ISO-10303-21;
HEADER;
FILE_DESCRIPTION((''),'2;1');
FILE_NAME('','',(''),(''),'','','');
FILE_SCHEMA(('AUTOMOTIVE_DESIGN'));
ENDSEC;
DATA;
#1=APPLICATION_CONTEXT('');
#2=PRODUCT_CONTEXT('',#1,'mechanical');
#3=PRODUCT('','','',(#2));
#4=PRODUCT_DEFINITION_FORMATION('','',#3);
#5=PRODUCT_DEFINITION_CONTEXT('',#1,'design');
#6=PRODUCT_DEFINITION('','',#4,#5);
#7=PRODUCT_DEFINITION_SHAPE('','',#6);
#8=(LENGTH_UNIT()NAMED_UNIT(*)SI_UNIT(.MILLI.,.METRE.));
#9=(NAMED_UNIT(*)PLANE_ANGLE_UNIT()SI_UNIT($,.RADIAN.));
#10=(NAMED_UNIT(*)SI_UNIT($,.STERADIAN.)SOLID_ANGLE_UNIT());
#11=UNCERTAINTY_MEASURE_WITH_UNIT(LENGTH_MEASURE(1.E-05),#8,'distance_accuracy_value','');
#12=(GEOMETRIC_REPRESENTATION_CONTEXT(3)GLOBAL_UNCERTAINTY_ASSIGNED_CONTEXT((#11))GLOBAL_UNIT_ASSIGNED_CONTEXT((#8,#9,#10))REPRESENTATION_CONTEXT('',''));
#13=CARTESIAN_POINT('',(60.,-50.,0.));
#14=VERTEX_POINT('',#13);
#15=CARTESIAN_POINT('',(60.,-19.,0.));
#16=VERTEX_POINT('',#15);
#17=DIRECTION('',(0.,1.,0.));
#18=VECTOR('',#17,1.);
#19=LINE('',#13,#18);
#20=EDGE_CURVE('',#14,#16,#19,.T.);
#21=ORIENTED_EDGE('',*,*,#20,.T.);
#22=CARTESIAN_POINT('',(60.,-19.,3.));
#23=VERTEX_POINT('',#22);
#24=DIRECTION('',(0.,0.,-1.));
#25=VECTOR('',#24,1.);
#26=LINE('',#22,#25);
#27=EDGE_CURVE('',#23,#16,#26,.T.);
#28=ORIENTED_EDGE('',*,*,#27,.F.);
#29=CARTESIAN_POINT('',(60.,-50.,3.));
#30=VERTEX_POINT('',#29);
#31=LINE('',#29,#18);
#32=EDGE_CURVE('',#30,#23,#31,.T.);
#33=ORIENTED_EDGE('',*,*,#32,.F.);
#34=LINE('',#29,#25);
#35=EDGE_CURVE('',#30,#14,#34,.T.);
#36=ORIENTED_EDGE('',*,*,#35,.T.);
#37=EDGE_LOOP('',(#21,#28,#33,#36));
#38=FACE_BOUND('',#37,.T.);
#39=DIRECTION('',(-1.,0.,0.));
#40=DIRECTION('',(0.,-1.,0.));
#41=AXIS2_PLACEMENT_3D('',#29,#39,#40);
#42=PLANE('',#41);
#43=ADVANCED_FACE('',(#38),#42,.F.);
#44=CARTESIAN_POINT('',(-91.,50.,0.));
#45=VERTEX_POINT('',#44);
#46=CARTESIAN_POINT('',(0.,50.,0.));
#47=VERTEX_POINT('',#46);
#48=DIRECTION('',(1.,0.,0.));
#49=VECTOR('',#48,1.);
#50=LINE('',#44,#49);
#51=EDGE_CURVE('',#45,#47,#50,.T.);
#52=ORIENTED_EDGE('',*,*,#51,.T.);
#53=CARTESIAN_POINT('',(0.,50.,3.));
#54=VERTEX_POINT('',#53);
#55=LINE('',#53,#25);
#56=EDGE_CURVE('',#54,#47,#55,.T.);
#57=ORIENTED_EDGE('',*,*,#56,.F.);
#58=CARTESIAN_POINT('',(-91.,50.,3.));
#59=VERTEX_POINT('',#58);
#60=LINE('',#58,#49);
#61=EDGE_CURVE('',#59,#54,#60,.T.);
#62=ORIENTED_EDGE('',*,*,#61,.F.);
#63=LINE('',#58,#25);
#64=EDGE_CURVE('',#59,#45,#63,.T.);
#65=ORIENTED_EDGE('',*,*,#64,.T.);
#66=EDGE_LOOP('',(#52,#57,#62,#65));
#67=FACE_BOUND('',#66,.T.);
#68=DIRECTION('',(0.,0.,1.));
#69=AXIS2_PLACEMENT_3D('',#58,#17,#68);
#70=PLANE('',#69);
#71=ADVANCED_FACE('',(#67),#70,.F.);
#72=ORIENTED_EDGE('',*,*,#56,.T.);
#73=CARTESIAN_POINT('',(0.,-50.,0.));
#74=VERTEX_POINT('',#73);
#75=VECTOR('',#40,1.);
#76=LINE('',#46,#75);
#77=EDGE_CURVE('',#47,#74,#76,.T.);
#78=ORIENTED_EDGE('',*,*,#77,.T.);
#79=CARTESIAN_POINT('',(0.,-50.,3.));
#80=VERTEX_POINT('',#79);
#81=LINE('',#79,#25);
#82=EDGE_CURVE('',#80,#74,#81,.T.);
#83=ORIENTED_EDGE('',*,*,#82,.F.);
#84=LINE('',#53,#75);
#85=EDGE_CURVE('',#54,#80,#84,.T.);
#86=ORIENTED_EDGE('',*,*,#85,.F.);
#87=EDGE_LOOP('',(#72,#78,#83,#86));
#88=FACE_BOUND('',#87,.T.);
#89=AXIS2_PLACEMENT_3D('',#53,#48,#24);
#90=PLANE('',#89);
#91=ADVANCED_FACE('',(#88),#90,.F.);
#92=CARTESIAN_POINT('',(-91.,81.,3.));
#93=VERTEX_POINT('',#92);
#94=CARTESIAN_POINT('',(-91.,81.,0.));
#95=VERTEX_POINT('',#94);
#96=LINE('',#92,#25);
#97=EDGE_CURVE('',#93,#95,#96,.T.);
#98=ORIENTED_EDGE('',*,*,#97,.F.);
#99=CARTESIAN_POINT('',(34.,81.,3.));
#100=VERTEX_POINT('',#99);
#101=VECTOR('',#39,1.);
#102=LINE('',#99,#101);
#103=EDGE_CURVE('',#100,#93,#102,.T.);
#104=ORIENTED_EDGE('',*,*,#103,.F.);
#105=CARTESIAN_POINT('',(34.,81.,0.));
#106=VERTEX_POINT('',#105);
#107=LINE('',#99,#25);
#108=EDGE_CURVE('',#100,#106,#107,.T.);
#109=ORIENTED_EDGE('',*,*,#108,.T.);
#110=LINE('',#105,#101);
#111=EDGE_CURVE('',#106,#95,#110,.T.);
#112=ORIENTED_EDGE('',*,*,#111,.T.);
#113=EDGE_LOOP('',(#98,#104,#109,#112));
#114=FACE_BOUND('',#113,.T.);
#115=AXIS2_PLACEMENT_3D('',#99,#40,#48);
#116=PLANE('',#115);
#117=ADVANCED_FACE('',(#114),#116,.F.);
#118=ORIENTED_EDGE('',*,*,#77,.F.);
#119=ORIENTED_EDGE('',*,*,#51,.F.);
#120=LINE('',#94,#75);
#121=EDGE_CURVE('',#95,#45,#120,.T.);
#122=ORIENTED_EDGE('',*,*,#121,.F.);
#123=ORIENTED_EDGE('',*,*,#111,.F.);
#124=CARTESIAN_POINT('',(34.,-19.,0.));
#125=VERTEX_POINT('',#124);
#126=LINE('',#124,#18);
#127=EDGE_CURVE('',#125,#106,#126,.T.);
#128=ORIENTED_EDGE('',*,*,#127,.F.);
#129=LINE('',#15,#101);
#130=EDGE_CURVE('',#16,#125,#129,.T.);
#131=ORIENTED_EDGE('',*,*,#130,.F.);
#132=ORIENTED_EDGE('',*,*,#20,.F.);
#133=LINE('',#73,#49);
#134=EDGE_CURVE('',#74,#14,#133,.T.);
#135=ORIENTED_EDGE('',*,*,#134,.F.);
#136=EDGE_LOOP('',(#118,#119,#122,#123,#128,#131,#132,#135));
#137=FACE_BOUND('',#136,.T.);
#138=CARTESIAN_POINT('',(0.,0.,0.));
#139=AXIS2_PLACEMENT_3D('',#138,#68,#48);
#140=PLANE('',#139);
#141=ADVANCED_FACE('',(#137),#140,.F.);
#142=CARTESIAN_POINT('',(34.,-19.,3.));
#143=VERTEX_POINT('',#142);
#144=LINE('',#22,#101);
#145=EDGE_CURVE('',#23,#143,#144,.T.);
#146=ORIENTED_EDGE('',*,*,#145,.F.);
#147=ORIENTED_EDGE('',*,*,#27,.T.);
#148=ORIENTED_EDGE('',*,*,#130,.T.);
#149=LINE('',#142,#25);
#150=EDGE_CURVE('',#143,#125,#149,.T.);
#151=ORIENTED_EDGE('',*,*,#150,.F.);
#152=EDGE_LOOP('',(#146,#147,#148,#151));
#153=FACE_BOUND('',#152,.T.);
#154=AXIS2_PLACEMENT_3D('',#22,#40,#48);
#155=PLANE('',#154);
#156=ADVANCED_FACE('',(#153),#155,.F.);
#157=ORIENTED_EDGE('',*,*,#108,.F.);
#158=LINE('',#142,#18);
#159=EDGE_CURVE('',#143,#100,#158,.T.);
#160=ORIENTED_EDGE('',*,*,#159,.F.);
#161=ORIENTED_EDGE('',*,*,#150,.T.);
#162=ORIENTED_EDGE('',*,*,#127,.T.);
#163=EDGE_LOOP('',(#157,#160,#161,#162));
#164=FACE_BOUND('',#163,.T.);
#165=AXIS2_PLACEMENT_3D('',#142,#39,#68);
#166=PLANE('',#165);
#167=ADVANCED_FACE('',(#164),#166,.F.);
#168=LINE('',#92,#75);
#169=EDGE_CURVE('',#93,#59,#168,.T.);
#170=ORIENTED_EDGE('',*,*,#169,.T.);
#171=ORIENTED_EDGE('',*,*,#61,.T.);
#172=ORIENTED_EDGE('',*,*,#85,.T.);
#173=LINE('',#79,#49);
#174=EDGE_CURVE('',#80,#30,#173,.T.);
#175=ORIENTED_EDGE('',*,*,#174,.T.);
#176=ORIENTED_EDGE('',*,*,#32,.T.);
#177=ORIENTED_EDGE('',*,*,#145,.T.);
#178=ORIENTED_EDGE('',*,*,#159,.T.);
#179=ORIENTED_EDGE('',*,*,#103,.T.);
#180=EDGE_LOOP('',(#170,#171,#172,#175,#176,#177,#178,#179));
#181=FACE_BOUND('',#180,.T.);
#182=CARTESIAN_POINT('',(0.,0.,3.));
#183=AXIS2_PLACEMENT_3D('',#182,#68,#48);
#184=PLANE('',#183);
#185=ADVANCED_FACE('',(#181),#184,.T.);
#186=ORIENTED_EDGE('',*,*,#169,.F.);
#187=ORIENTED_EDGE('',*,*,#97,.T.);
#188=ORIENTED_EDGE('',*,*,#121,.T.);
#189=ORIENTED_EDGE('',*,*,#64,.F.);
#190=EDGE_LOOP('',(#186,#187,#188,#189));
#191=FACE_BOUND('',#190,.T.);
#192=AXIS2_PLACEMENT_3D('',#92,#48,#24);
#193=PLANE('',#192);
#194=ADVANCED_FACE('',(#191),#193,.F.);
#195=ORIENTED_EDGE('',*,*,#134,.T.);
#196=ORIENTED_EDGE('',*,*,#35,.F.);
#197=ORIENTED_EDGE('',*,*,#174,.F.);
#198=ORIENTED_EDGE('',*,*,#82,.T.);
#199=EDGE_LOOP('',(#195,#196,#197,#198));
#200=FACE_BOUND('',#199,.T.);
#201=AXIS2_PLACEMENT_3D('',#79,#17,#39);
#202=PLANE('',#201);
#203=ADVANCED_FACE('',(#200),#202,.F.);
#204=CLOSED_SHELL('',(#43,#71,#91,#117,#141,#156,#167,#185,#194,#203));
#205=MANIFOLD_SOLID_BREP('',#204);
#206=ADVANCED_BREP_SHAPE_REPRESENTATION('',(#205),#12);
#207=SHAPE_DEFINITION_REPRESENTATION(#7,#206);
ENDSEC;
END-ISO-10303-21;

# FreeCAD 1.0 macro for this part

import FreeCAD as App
import Part
import Sketcher
from FreeCAD import Vector

doc = App.newDocument("Part")
body = doc.addObject("PartDesign::Body", "Body")

# Sketch on XY plane
sketch1 = body.newObject("Sketcher::SketchObject", "Sketch")
sketch1.AttachmentSupport = (doc.getObject("XY_Plane"), [""])
sketch1.MapMode = "FlatFace"
sketch1.addGeometry([
    Part.LineSegment(Vector(-91, 81, 0), Vector(-91, 50, 0)),  # 0
    Part.LineSegment(Vector(-91, 50, 0), Vector(0, 50, 0)),  # 1
    Part.LineSegment(Vector(0, 50, 0), Vector(0, -50, 0)),  # 2
    Part.LineSegment(Vector(0, -50, 0), Vector(60, -50, 0)),  # 3
    Part.LineSegment(Vector(60, -50, 0), Vector(60, -19, 0)),  # 4
    Part.LineSegment(Vector(60, -19, 0), Vector(34, -19, 0)),  # 5
    Part.LineSegment(Vector(34, -19, 0), Vector(34, 81, 0)),  # 6
    Part.LineSegment(Vector(34, 81, 0), Vector(-91, 81, 0)),  # 7
], False)
sketch1.addConstraint([
    Sketcher.Constraint("Coincident", 0, 2, 1, 1),
    Sketcher.Constraint("Coincident", 1, 2, 2, 1),
    Sketcher.Constraint("Coincident", 2, 2, 3, 1),
    Sketcher.Constraint("Coincident", 3, 2, 4, 1),
    Sketcher.Constraint("Coincident", 4, 2, 5, 1),
    Sketcher.Constraint("Coincident", 5, 2, 6, 1),
    Sketcher.Constraint("Coincident", 6, 2, 7, 1),
    Sketcher.Constraint("Coincident", 7, 2, 0, 1),
    Sketcher.Constraint("Vertical", 0),
    Sketcher.Constraint("Horizontal", 1),
    Sketcher.Constraint("Vertical", 2),
    Sketcher.Constraint("Horizontal", 3),
    Sketcher.Constraint("Vertical", 4),
    Sketcher.Constraint("Horizontal", 5),
    Sketcher.Constraint("Vertical", 6),
    Sketcher.Constraint("Horizontal", 7),
    Sketcher.Constraint("Symmetric", 1, 2, 2, 2, -1, 1),
    Sketcher.Constraint("Equal", 0, 4),
    Sketcher.Constraint("DistanceX", 1, 1, 1, 2, 91.0),
    Sketcher.Constraint("DistanceX", 3, 1, 3, 2, 60.0),
    Sketcher.Constraint("DistanceX", 5, 2, 5, 1, 26.0),
    Sketcher.Constraint("DistanceY", 0, 2, 0, 1, 31.0),
    Sketcher.Constraint("DistanceY", 2, 2, 2, 1, 100.0),
])
pad1 = body.newObject("PartDesign::Pad", "Pad")
pad1.Profile = sketch1
pad1.Length = 3

doc.recompute()
